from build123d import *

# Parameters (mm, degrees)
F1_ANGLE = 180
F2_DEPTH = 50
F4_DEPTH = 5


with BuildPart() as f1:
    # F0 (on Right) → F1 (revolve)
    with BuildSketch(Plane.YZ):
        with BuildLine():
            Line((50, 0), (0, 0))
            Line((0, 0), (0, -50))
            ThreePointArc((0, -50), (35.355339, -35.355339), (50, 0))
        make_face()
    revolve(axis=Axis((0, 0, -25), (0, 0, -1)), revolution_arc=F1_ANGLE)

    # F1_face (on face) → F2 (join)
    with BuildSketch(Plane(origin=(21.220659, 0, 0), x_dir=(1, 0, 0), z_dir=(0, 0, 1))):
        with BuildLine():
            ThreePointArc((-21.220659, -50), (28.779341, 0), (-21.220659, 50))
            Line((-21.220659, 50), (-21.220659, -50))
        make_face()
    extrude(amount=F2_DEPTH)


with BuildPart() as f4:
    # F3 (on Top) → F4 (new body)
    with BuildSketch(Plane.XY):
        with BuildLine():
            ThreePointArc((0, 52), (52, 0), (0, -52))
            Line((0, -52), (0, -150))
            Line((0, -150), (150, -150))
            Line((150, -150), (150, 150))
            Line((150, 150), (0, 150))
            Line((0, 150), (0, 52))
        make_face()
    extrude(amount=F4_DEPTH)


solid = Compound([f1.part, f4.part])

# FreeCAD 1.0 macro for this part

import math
import FreeCAD as App
import Part
import Sketcher
from FreeCAD import Vector
Q = App.Units.Quantity

doc = App.newDocument("Part")
body = doc.addObject("PartDesign::Body", "Body")

sketch1 = doc.addObject("Sketcher::SketchObject", "Sketch")
body.addObject(sketch1)
sketch1.AttachmentSupport = (doc.YZ_Plane, [""])
sketch1.MapMode = "FlatFace"
sketch1.addGeometry([
    Part.LineSegment(Vector(50, 0, 0), Vector(0, 0, 0)),
    Part.LineSegment(Vector(0, 0, 0), Vector(0, -50, 0)),
    Part.ArcOfCircle(Part.Circle(Vector(0, 0, 0), Vector(0, 0, 1), 50), math.radians(-90), math.radians(0)),
], False)
sketch1.addConstraint([
    Sketcher.Constraint("Coincident", 0, 2, 1, 1),
    Sketcher.Constraint("Coincident", 1, 2, 2, 1),
    Sketcher.Constraint("Coincident", 2, 2, 0, 1),
    Sketcher.Constraint("Horizontal", 0),
    Sketcher.Constraint("Vertical", 1),
    Sketcher.Constraint("Coincident", 2, 3, -1, 1),
    Sketcher.Constraint("Coincident", 0, 2, -1, 1),
    Sketcher.Constraint("Radius", 2, Q("50 mm")),
])
revolution = doc.addObject("PartDesign::Revolution", "Revolution")
body.addObject(revolution)
revolution.Profile = sketch1
revolution.ReferenceAxis = (sketch1, ["V_Axis"])
revolution.Angle = 180
revolution.Reversed = True

sketch2 = doc.addObject("Sketcher::SketchObject", "Sketch001")
body.addObject(sketch2)
sketch2.AttachmentSupport = (doc.XY_Plane, [""])
sketch2.MapMode = "FlatFace"
sketch2.addGeometry([
    Part.ArcOfCircle(Part.Circle(Vector(0, 0, 0), Vector(0, 0, 1), 50), math.radians(-90), math.radians(90)),
    Part.LineSegment(Vector(0, 50, 0), Vector(0, -50, 0)),
], False)
sketch2.addConstraint([
    Sketcher.Constraint("Coincident", 0, 1, 1, 2),
    Sketcher.Constraint("Coincident", 1, 1, 0, 2),
    Sketcher.Constraint("Vertical", 1),
    Sketcher.Constraint("Coincident", 0, 3, -1, 1),
    Sketcher.Constraint("PointOnObject", 0, 1, -2),
    Sketcher.Constraint("Radius", 0, Q("50 mm")),
])
pad1 = doc.addObject("PartDesign::Pad", "Pad")
body.addObject(pad1)
pad1.Profile = sketch2
pad1.Length = 50
body2 = doc.addObject("PartDesign::Body", "Body001")

sketch3 = doc.addObject("Sketcher::SketchObject", "Sketch002")
body2.addObject(sketch3)
sketch3.AttachmentSupport = (doc.getObject("XY_Plane001"), [""])
sketch3.MapMode = "FlatFace"
sketch3.addGeometry([
    Part.ArcOfCircle(Part.Circle(Vector(0, 0, 0), Vector(0, 0, 1), 52), math.radians(-90), math.radians(90)),
    Part.LineSegment(Vector(0, -52, 0), Vector(0, -150, 0)),
    Part.LineSegment(Vector(0, -150, 0), Vector(150, -150, 0)),
    Part.LineSegment(Vector(150, -150, 0), Vector(150, 150, 0)),
    Part.LineSegment(Vector(150, 150, 0), Vector(0, 150, 0)),
    Part.LineSegment(Vector(0, 150, 0), Vector(0, 52, 0)),
], False)
sketch3.addConstraint([
    Sketcher.Constraint("Coincident", 0, 1, 1, 1),
    Sketcher.Constraint("Coincident", 1, 2, 2, 1),
    Sketcher.Constraint("Coincident", 2, 2, 3, 1),
    Sketcher.Constraint("Coincident", 3, 2, 4, 1),
    Sketcher.Constraint("Coincident", 4, 2, 5, 1),
    Sketcher.Constraint("Coincident", 5, 2, 0, 2),
    Sketcher.Constraint("Vertical", 1),
    Sketcher.Constraint("Horizontal", 2),
    Sketcher.Constraint("Vertical", 3),
    Sketcher.Constraint("Horizontal", 4),
    Sketcher.Constraint("Vertical", 5),
    Sketcher.Constraint("Coincident", 0, 3, -1, 1),
    Sketcher.Constraint("Symmetric", 1, 2, 4, 2, -1, 1),
    Sketcher.Constraint("PointOnObject", 0, 1, -2),
    Sketcher.Constraint("Radius", 0, Q("52 mm")),
    Sketcher.Constraint("DistanceX", 2, 1, 2, 2, Q("150 mm")),
    Sketcher.Constraint("DistanceY", 1, 2, 1, 1, Q("98 mm")),
])
pad2 = doc.addObject("PartDesign::Pad", "Pad001")
body2.addObject(pad2)
pad2.Profile = sketch3
pad2.Length = 5

doc.recompute()
